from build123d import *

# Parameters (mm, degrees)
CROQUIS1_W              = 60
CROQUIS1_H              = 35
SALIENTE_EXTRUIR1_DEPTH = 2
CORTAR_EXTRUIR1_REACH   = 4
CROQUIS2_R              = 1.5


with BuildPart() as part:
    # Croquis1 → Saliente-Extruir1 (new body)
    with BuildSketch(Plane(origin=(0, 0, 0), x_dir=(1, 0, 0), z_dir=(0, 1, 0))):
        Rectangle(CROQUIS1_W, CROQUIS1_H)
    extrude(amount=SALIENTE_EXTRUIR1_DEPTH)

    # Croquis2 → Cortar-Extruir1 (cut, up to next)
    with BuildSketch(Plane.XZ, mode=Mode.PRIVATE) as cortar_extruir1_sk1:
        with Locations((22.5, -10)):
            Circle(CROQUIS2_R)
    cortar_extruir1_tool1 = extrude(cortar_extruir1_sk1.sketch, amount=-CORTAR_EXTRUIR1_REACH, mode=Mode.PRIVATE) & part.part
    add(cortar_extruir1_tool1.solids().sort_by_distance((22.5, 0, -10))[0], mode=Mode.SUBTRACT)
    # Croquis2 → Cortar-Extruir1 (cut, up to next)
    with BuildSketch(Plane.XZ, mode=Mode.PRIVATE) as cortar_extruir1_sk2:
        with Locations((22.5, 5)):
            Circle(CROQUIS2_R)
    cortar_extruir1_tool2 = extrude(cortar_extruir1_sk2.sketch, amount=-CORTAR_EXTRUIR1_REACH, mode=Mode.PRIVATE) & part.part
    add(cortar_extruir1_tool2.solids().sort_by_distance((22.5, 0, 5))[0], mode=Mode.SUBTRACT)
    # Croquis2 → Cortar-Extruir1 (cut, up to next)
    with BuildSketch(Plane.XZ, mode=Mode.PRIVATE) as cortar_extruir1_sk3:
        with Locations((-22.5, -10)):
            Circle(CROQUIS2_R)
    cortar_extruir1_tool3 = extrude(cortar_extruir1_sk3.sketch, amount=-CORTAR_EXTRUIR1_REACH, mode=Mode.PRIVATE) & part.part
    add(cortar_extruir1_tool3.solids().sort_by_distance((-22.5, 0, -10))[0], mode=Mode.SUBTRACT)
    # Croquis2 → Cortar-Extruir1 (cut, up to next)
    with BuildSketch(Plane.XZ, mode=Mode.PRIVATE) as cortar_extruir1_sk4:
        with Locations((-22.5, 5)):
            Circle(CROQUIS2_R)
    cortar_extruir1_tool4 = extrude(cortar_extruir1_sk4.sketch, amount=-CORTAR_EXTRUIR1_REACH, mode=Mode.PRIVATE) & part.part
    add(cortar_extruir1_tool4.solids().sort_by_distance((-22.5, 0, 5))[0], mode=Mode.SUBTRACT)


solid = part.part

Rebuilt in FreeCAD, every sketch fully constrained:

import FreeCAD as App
import Part
import Sketcher
from FreeCAD import Vector

doc = App.newDocument("Part")
body = doc.addObject("PartDesign::Body", "Body")

sketch1 = doc.addObject("Sketcher::SketchObject", "Sketch")
body.addObject(sketch1)
sketch1.AttachmentSupport = (doc.XZ_Plane, [""])
sketch1.MapMode = "FlatFace"
sketch1.addGeometry([
    Part.LineSegment(Vector(-30, -18, 0), Vector(-30, 18, 0)),
    Part.LineSegment(Vector(-30, 18, 0), Vector(30, 18, 0)),
    Part.LineSegment(Vector(30, 18, 0), Vector(30, -18, 0)),
    Part.LineSegment(Vector(30, -18, 0), Vector(-30, -18, 0)),
], False)
sketch1.addConstraint([
    Sketcher.Constraint("Coincident", 0, 2, 1, 1),
    Sketcher.Constraint("Coincident", 1, 2, 2, 1),
    Sketcher.Constraint("Coincident", 2, 2, 3, 1),
    Sketcher.Constraint("Coincident", 3, 2, 0, 1),
    Sketcher.Constraint("Vertical", 0),
    Sketcher.Constraint("Horizontal", 1),
    Sketcher.Constraint("Vertical", 2),
    Sketcher.Constraint("Horizontal", 3),
    Sketcher.Constraint("Symmetric", 0, 2, 2, 2, -1, 1),
    Sketcher.Constraint("DistanceX", 1, 1, 1, 2, 60.0),
    Sketcher.Constraint("DistanceY", 0, 1, 0, 2, 35.0),
])
pad1 = doc.addObject("PartDesign::Pad", "Pad")
body.addObject(pad1)
pad1.Profile = sketch1
pad1.Length = 2
pad1.Reversed = True

sketch2 = doc.addObject("Sketcher::SketchObject", "Sketch001")
body.addObject(sketch2)
sketch2.AttachmentSupport = (doc.XZ_Plane, [""])
sketch2.MapMode = "FlatFace"
sketch2.addGeometry(Part.Circle(Vector(22.5, -10, 0), Vector(0, 0, 1), 1.5), False)
sketch2.addConstraint([
    Sketcher.Constraint("Diameter", 0, 3.0),
    Sketcher.Constraint("DistanceY", 0, 3, -1, 1, 10.0),
    Sketcher.Constraint("DistanceX", -1, 1, 0, 3, 22.5),
])
pocket1 = doc.addObject("PartDesign::Pocket", "Pocket")
body.addObject(pocket1)
pocket1.Profile = sketch2
pocket1.Type = "UpToFirst"

sketch3 = doc.addObject("Sketcher::SketchObject", "Sketch002")
body.addObject(sketch3)
sketch3.AttachmentSupport = (doc.XZ_Plane, [""])
sketch3.MapMode = "FlatFace"
sketch3.addGeometry(Part.Circle(Vector(22.5, 5, 0), Vector(0, 0, 1), 1.5), False)
sketch3.addConstraint([
    Sketcher.Constraint("Diameter", 0, 3.0),
    Sketcher.Constraint("DistanceY", -1, 1, 0, 3, 5.0),
    Sketcher.Constraint("DistanceX", -1, 1, 0, 3, 22.5),
])
pocket2 = doc.addObject("PartDesign::Pocket", "Pocket001")
body.addObject(pocket2)
pocket2.Profile = sketch3
pocket2.Type = "UpToFirst"

sketch4 = doc.addObject("Sketcher::SketchObject", "Sketch003")
body.addObject(sketch4)
sketch4.AttachmentSupport = (doc.XZ_Plane, [""])
sketch4.MapMode = "FlatFace"
sketch4.addGeometry(Part.Circle(Vector(-22.5, -10, 0), Vector(0, 0, 1), 1.5), False)
sketch4.addConstraint([
    Sketcher.Constraint("Diameter", 0, 3.0),
    Sketcher.Constraint("DistanceY", 0, 3, -1, 1, 10.0),
    Sketcher.Constraint("DistanceX", 0, 3, -1, 1, 22.5),
])
pocket3 = doc.addObject("PartDesign::Pocket", "Pocket002")
body.addObject(pocket3)
pocket3.Profile = sketch4
pocket3.Type = "UpToFirst"

sketch5 = doc.addObject("Sketcher::SketchObject", "Sketch004")
body.addObject(sketch5)
sketch5.AttachmentSupport = (doc.XZ_Plane, [""])
sketch5.MapMode = "FlatFace"
sketch5.addGeometry(Part.Circle(Vector(-22.5, 5, 0), Vector(0, 0, 1), 1.5), False)
sketch5.addConstraint([
    Sketcher.Constraint("Diameter", 0, 3.0),
    Sketcher.Constraint("DistanceY", -1, 1, 0, 3, 5.0),
    Sketcher.Constraint("DistanceX", 0, 3, -1, 1, 22.5),
])
pocket4 = doc.addObject("PartDesign::Pocket", "Pocket003")
body.addObject(pocket4)
pocket4.Profile = sketch5
pocket4.Type = "UpToFirst"

doc.recompute()
